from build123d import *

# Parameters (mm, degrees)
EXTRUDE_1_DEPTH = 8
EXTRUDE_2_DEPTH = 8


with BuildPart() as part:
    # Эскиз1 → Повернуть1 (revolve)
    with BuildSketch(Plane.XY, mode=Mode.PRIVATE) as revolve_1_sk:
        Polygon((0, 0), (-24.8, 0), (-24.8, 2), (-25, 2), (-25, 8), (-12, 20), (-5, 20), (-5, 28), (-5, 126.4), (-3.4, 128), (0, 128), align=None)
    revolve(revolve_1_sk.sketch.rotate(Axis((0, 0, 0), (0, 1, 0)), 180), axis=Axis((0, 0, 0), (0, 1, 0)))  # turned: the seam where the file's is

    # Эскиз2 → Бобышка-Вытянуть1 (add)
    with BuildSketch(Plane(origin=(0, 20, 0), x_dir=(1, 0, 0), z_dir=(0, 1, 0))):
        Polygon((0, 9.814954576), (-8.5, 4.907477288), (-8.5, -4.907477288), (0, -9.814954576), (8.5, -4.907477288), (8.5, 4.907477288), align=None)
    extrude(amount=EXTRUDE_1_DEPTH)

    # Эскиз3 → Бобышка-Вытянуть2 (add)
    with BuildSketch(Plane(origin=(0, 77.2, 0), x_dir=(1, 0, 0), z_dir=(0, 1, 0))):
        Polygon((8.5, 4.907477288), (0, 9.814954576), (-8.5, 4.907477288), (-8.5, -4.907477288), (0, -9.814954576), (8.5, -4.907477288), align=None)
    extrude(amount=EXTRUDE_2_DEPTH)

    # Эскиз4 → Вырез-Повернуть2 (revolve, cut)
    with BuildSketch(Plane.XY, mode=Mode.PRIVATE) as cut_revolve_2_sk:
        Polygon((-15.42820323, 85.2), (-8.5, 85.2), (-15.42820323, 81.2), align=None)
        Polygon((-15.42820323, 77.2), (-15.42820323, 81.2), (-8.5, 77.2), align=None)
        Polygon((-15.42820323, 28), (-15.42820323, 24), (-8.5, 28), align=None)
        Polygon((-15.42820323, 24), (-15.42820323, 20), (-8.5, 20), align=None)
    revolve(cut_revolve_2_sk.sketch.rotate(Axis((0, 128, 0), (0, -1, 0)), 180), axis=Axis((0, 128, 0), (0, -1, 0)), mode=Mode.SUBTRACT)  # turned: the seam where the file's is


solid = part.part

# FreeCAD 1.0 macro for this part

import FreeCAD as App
import Part
import Sketcher
Q = App.Units.Quantity

doc = App.newDocument("Part")
body = doc.addObject("PartDesign::Body", "Body")

sketch1 = doc.addObject("Sketcher::SketchObject", "Sketch")
body.addObject(sketch1)
sketch1.AttachmentSupport = (doc.XY_Plane, [""])
sketch1.MapMode = "FlatFace"
sketch1.addGeometry([
    Part.LineSegment(App.Vector(-24.8, 0, 0), App.Vector(0, 0, 0)),
    Part.LineSegment(App.Vector(0, 0, 0), App.Vector(0, 128, 0)),
    Part.LineSegment(App.Vector(0, 128, 0), App.Vector(-3.4, 128, 0)),
    Part.LineSegment(App.Vector(-3.4, 128, 0), App.Vector(-5, 126.4, 0)),
    Part.LineSegment(App.Vector(-5, 126.4, 0), App.Vector(-5, 20, 0)),
    Part.LineSegment(App.Vector(-5, 20, 0), App.Vector(-12, 20, 0)),
    Part.LineSegment(App.Vector(-12, 20, 0), App.Vector(-25, 8, 0)),
    Part.LineSegment(App.Vector(-25, 8, 0), App.Vector(-25, 2, 0)),
    Part.LineSegment(App.Vector(-25, 2, 0), App.Vector(-24.8, 2, 0)),
    Part.LineSegment(App.Vector(-24.8, 2, 0), App.Vector(-24.8, 0, 0)),
], False)
sketch1.addConstraint([
    Sketcher.Constraint("Coincident", 0, 2, 1, 1),
    Sketcher.Constraint("Coincident", 1, 2, 2, 1),
    Sketcher.Constraint("Coincident", 2, 2, 3, 1),
    Sketcher.Constraint("Coincident", 3, 2, 4, 1),
    Sketcher.Constraint("Coincident", 4, 2, 5, 1),
    Sketcher.Constraint("Coincident", 5, 2, 6, 1),
    Sketcher.Constraint("Coincident", 6, 2, 7, 1),
    Sketcher.Constraint("Coincident", 7, 2, 8, 1),
    Sketcher.Constraint("Coincident", 8, 2, 9, 1),
    Sketcher.Constraint("Coincident", 9, 2, 0, 1),
    Sketcher.Constraint("Horizontal", 0),
    Sketcher.Constraint("Vertical", 1),
    Sketcher.Constraint("Horizontal", 2),
    Sketcher.Constraint("Vertical", 4),
    Sketcher.Constraint("Horizontal", 5),
    Sketcher.Constraint("Vertical", 7),
    Sketcher.Constraint("Horizontal", 8),
    Sketcher.Constraint("Vertical", 9),
    Sketcher.Constraint("Coincident", 0, 2, -1, 1),
    Sketcher.Constraint("DistanceX", 5, 2, 5, 1, Q("7 mm")),
    Sketcher.Constraint("DistanceY", 1, 1, 1, 2, Q("128 mm")),
    Sketcher.Constraint("DistanceY", 7, 2, 7, 1, Q("6 mm")),
    Sketcher.Constraint("DistanceY", 9, 2, 9, 1, Q("2 mm")),
    Sketcher.Constraint("Angle", 3, Q("-135 deg")),
    Sketcher.Constraint("DistanceX", 0, 1, 0, 2, Q("24.8 mm")),
    Sketcher.Constraint("DistanceX", 2, 2, 2, 1, Q("3.4 mm")),
    Sketcher.Constraint("DistanceX", 8, 1, 8, 2, Q("0.2 mm")),
    Sketcher.Constraint("DistanceY", 4, 2, 4, 1, Q("106.4 mm")),
    Sketcher.Constraint("DistanceX", 3, 2, -1, 1, Q("5 mm")),
])
revolution = doc.addObject("PartDesign::Revolution", "Revolution")
body.addObject(revolution)
revolution.Profile = sketch1
revolution.ReferenceAxis = (sketch1, ["V_Axis"])
revolution.Angle = 360

sketch2 = doc.addObject("Sketcher::SketchObject", "Sketch001")
body.addObject(sketch2)
sketch2.AttachmentSupport = (doc.XZ_Plane, [""])
sketch2.MapMode = "FlatFace"
sketch2.AttachmentOffset = App.Placement(App.Vector(0, 0, -20), App.Rotation())
sketch2.addGeometry([
    Part.LineSegment(App.Vector(0, -10, 0), App.Vector(-8, -5, 0)),
    Part.LineSegment(App.Vector(-8, -5, 0), App.Vector(-8, 5, 0)),
    Part.LineSegment(App.Vector(-8, 5, 0), App.Vector(0, 10, 0)),
    Part.LineSegment(App.Vector(0, 10, 0), App.Vector(8, 5, 0)),
    Part.LineSegment(App.Vector(8, 5, 0), App.Vector(8, -5, 0)),
    Part.LineSegment(App.Vector(8, -5, 0), App.Vector(0, -10, 0)),
], False)
sketch2.addConstraint([
    Sketcher.Constraint("Coincident", 0, 2, 1, 1),
    Sketcher.Constraint("Coincident", 1, 2, 2, 1),
    Sketcher.Constraint("Coincident", 2, 2, 3, 1),
    Sketcher.Constraint("Coincident", 3, 2, 4, 1),
    Sketcher.Constraint("Coincident", 4, 2, 5, 1),
    Sketcher.Constraint("Coincident", 5, 2, 0, 1),
    Sketcher.Constraint("Vertical", 1),
    Sketcher.Constraint("Vertical", 4),
    Sketcher.Constraint("Symmetric", 0, 2, 3, 2, -1, 1),
    Sketcher.Constraint("Symmetric", 2, 2, 5, 2, -1, 1),
    Sketcher.Constraint("PointOnObject", 2, 2, -2),
    Sketcher.Constraint("Parallel", 2, 5),
    Sketcher.Constraint("Horizontal", 1, 2, 3, 2),
    Sketcher.Constraint("Angle", 0, Q("150 deg")),
    Sketcher.Constraint("DistanceX", 1, 2, 3, 2, Q("17 mm")),
    Sketcher.Constraint("DistanceY", 1, 1, 1, 2, Q("9.814955 mm")),
])
pad1 = doc.addObject("PartDesign::Pad", "Pad")
body.addObject(pad1)
pad1.Profile = sketch2
pad1.Length = 8
pad1.Reversed = True

sketch3 = doc.addObject("Sketcher::SketchObject", "Sketch002")
body.addObject(sketch3)
sketch3.AttachmentSupport = (doc.XZ_Plane, [""])
sketch3.MapMode = "FlatFace"
sketch3.AttachmentOffset = App.Placement(App.Vector(0, 0, -77.2), App.Rotation())
sketch3.addGeometry([
    Part.LineSegment(App.Vector(8, -5, 0), App.Vector(0, -10, 0)),
    Part.LineSegment(App.Vector(0, -10, 0), App.Vector(-8, -5, 0)),
    Part.LineSegment(App.Vector(-8, -5, 0), App.Vector(-8, 5, 0)),
    Part.LineSegment(App.Vector(-8, 5, 0), App.Vector(0, 10, 0)),
    Part.LineSegment(App.Vector(0, 10, 0), App.Vector(8, 5, 0)),
    Part.LineSegment(App.Vector(8, 5, 0), App.Vector(8, -5, 0)),
], False)
sketch3.addConstraint([
    Sketcher.Constraint("Coincident", 0, 2, 1, 1),
    Sketcher.Constraint("Coincident", 1, 2, 2, 1),
    Sketcher.Constraint("Coincident", 2, 2, 3, 1),
    Sketcher.Constraint("Coincident", 3, 2, 4, 1),
    Sketcher.Constraint("Coincident", 4, 2, 5, 1),
    Sketcher.Constraint("Coincident", 5, 2, 0, 1),
    Sketcher.Constraint("Vertical", 2),
    Sketcher.Constraint("Vertical", 5),
    Sketcher.Constraint("Symmetric", 0, 2, 3, 2, -1, 1),
    Sketcher.Constraint("Symmetric", 1, 2, 4, 2, -1, 1),
    Sketcher.Constraint("PointOnObject", 0, 2, -2),
    Sketcher.Constraint("Parallel", 0, 3),
    Sketcher.Constraint("Horizontal", 2, 2, 4, 2),
    Sketcher.Constraint("Angle", 0, Q("-150 deg")),
    Sketcher.Constraint("DistanceX", 2, 2, 4, 2, Q("17 mm")),
    Sketcher.Constraint("DistanceY", 2, 1, 2, 2, Q("9.814955 mm")),
])
pad2 = doc.addObject("PartDesign::Pad", "Pad001")
body.addObject(pad2)
pad2.Profile = sketch3
pad2.Length = 8
pad2.Reversed = True

sketch4 = doc.addObject("Sketcher::SketchObject", "Sketch003")
body.addObject(sketch4)
sketch4.AttachmentSupport = (doc.XY_Plane, [""])
sketch4.MapMode = "FlatFace"
sketch4.addGeometry([
    Part.LineSegment(App.Vector(-8.5, 85.2, 0), App.Vector(-15.4, 85.2, 0)),
    Part.LineSegment(App.Vector(-15.4, 85.2, 0), App.Vector(-15.4, 81.2, 0)),
    Part.LineSegment(App.Vector(-15.4, 81.2, 0), App.Vector(-8.5, 85.2, 0)),
    Part.LineSegment(App.Vector(-15.4, 81.2, 0), App.Vector(-15.4, 77.2, 0)),
    Part.LineSegment(App.Vector(-15.4, 77.2, 0), App.Vector(-8.5, 77.2, 0)),
    Part.LineSegment(App.Vector(-8.5, 77.2, 0), App.Vector(-15.4, 81.2, 0)),
    Part.LineSegment(App.Vector(-15.4, 28, 0), App.Vector(-15.4, 24, 0)),
    Part.LineSegment(App.Vector(-15.4, 24, 0), App.Vector(-8.5, 28, 0)),
    Part.LineSegment(App.Vector(-8.5, 28, 0), App.Vector(-15.4, 28, 0)),
    Part.LineSegment(App.Vector(-15.4, 24, 0), App.Vector(-15.4, 20, 0)),
    Part.LineSegment(App.Vector(-15.4, 20, 0), App.Vector(-8.5, 20, 0)),
    Part.LineSegment(App.Vector(-8.5, 20, 0), App.Vector(-15.4, 24, 0)),
], False)
sketch4.addConstraint([
    Sketcher.Constraint("Coincident", 0, 2, 1, 1),
    Sketcher.Constraint("Coincident", 1, 2, 2, 1),
    Sketcher.Constraint("Coincident", 2, 2, 0, 1),
    Sketcher.Constraint("Coincident", 3, 2, 4, 1),
    Sketcher.Constraint("Coincident", 4, 2, 5, 1),
    Sketcher.Constraint("Coincident", 5, 2, 3, 1),
    Sketcher.Constraint("Coincident", 6, 2, 7, 1),
    Sketcher.Constraint("Coincident", 7, 2, 8, 1),
    Sketcher.Constraint("Coincident", 8, 2, 6, 1),
    Sketcher.Constraint("Coincident", 9, 2, 10, 1),
    Sketcher.Constraint("Coincident", 10, 2, 11, 1),
    Sketcher.Constraint("Coincident", 11, 2, 9, 1),
    Sketcher.Constraint("Horizontal", 0),
    Sketcher.Constraint("Vertical", 1),
    Sketcher.Constraint("Vertical", 3),
    Sketcher.Constraint("Horizontal", 4),
    Sketcher.Constraint("Vertical", 6),
    Sketcher.Constraint("Horizontal", 8),
    Sketcher.Constraint("Vertical", 9),
    Sketcher.Constraint("Horizontal", 10),
    Sketcher.Constraint("Coincident", 5, 2, 1, 2),
    Sketcher.Constraint("Coincident", 11, 2, 6, 2),
    Sketcher.Constraint("Parallel", 2, 7),
    Sketcher.Constraint("Parallel", 5, 11),
    Sketcher.Constraint("Vertical", 2, 2, 4, 2),
    Sketcher.Constraint("Vertical", 5, 2, 6, 2),
    Sketcher.Constraint("Vertical", 4, 2, 7, 2),
    Sketcher.Constraint("Vertical", 7, 2, 10, 2),
    Sketcher.Constraint("Equal", 1, 3),
    Sketcher.Constraint("DistanceY", 1, 2, 1, 1, Q("4 mm")),
    Sketcher.Constraint("Angle", 2, Q("30 deg")),
    Sketcher.Constraint("DistanceY", -1, 1, 6, 2, Q("24 mm")),
    Sketcher.Constraint("DistanceY", -1, 1, 0, 2, Q("85.2 mm")),
    Sketcher.Constraint("DistanceX", 2, 2, -1, 1, Q("8.5 mm")),
])
groove = doc.addObject("PartDesign::Groove", "Groove")
body.addObject(groove)
groove.Profile = sketch4
groove.ReferenceAxis = (sketch4, ["V_Axis"])
groove.Angle = 360

doc.recompute()
